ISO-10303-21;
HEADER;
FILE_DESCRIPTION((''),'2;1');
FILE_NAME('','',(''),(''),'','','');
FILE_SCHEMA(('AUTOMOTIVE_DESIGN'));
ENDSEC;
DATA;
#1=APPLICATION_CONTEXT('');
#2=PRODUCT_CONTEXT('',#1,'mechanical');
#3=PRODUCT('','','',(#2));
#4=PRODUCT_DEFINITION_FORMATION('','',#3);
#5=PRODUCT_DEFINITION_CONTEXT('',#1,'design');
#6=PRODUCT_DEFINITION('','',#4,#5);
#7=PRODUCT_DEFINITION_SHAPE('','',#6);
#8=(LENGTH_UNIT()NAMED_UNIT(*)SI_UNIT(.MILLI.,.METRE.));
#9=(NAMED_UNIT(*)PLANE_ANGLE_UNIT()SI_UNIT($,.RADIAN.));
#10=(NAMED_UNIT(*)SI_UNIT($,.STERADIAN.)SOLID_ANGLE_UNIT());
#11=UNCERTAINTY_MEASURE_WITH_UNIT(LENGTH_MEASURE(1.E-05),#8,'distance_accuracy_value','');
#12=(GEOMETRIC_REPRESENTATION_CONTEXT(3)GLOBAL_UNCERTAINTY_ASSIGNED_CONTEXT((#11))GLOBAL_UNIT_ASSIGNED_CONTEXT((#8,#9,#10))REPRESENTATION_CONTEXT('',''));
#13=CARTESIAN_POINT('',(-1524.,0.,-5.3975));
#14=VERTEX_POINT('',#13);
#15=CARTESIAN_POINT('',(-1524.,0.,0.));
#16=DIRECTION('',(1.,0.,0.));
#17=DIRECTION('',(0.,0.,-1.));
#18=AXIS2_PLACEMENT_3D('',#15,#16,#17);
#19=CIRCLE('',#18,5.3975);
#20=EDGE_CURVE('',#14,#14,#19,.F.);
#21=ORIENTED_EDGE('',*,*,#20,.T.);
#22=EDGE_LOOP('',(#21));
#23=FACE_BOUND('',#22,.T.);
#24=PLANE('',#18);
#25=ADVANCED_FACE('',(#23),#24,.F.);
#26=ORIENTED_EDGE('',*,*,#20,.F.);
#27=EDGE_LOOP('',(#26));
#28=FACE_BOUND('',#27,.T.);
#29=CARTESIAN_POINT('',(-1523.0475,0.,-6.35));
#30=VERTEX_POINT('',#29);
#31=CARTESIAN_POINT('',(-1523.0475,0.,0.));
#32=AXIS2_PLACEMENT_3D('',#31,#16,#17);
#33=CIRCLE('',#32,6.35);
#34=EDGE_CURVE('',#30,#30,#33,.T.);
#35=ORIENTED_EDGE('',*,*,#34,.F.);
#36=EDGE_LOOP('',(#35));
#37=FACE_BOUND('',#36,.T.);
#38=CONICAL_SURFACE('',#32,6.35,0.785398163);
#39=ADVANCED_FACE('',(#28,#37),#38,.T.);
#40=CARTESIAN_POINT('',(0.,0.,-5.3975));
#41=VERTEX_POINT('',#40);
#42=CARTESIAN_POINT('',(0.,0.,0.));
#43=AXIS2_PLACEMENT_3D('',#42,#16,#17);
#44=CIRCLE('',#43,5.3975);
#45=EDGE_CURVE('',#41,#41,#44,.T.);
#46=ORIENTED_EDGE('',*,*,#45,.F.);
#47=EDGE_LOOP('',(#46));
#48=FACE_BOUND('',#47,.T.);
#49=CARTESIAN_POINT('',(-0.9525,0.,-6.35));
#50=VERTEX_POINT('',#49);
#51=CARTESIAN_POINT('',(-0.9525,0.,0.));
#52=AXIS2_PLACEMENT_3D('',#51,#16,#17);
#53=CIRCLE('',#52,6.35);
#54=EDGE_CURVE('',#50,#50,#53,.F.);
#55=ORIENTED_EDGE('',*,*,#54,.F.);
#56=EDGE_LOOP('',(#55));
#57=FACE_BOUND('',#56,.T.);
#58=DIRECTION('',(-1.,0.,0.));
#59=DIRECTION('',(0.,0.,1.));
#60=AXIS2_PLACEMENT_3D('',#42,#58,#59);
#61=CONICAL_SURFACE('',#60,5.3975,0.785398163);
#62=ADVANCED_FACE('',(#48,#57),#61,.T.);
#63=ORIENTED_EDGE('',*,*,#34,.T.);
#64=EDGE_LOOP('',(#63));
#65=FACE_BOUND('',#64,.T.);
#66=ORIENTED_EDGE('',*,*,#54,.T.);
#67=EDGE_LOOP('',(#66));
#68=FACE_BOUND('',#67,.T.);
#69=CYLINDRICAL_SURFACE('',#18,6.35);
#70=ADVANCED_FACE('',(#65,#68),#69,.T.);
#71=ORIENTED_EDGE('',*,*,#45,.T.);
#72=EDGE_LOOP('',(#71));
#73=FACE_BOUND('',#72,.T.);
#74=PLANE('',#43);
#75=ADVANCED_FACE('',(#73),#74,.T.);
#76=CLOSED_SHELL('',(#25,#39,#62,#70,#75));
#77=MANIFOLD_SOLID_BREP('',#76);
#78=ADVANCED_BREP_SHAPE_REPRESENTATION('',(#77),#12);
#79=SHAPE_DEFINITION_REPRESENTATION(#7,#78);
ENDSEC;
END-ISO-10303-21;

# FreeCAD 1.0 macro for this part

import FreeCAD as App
import Part
import Sketcher

V = App.Vector
Q = App.Units.Quantity


def edges_at(feature, points):
    """Names of the edges that pass closest to the given points."""
    edges = feature.Shape.Edges
    near = lambda p: min(range(len(edges)), key=lambda i: edges[i].distToShape(Part.Vertex(*p))[0])
    return sorted({f"Edge{near(p) + 1}" for p in points})

doc = App.newDocument("Part")
body = doc.addObject("PartDesign::Body", "Body")

sketch1 = doc.addObject("Sketcher::SketchObject", "Sketch")
body.addObject(sketch1)
sketch1.AttachmentSupport = (doc.YZ_Plane, [""])
sketch1.MapMode = "FlatFace"
sketch1.addGeometry(Part.Circle(V(0, 0, 0), V(0, 0, 1), 6.35), False)
sketch1.addConstraint([
    Sketcher.Constraint("Coincident", 0, 3, -1, 1),
    Sketcher.Constraint("Diameter", 0, Q("0.5 in")),
])
pad1 = doc.addObject("PartDesign::Pad", "Pad")
body.addObject(pad1)
pad1.Profile = sketch1
pad1.Length = Q("60 in")
pad1.Reversed = True
doc.recompute()

chamfer = doc.addObject("PartDesign::Chamfer", "Chamfer")
body.addObject(chamfer)
chamfer.Base = (pad1, edges_at(pad1, [(0, 0, 6.35), (-1524, 0, 6.35)]))
chamfer.Size = Q("0.0375 in")

doc.recompute()
